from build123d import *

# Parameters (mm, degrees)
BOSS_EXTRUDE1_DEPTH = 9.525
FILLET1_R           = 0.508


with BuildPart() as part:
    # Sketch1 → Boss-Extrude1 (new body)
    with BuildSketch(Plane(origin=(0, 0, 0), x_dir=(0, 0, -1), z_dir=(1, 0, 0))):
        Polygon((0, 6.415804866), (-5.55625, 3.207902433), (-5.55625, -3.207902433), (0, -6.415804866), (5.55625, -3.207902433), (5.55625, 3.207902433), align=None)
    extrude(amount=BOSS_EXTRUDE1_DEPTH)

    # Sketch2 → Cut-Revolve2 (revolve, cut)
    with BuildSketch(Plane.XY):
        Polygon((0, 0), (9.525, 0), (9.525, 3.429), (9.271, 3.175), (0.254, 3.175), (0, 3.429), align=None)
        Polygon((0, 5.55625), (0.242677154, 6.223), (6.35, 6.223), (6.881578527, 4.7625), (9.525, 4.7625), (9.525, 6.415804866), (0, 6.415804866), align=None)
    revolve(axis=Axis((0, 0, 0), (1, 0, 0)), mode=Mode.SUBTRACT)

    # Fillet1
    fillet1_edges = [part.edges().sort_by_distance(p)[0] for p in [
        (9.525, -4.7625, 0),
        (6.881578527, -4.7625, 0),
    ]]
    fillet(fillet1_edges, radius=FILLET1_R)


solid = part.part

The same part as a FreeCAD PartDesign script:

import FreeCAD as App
import Part
import Sketcher
from FreeCAD import Vector
Q = App.Units.Quantity


def edges_at(feature, points):
    """Names of the edges that pass closest to the given points."""
    edges = feature.Shape.Edges
    near = lambda p: min(range(len(edges)), key=lambda i: edges[i].distToShape(Part.Vertex(*p))[0])
    return sorted({f"Edge{near(p) + 1}" for p in points})

doc = App.newDocument("Part")
body = doc.addObject("PartDesign::Body", "Body")

# Sketch on YZ plane
sketch1 = doc.addObject("Sketcher::SketchObject", "Sketch")
body.addObject(sketch1)
sketch1.AttachmentSupport = (doc.YZ_Plane, [""])
sketch1.MapMode = "FlatFace"
sketch1.addGeometry([
    Part.LineSegment(Vector(6.415805, 0, 0), Vector(3.207902, 5.55625, 0)),  # 0
    Part.LineSegment(Vector(3.207902, 5.55625, 0), Vector(-3.207902, 5.55625, 0)),  # 1
    Part.LineSegment(Vector(-3.207902, 5.55625, 0), Vector(-6.415805, 0, 0)),  # 2
    Part.LineSegment(Vector(-6.415805, 0, 0), Vector(-3.207902, -5.55625, 0)),  # 3
    Part.LineSegment(Vector(-3.207902, -5.55625, 0), Vector(3.207902, -5.55625, 0)),  # 4
    Part.LineSegment(Vector(3.207902, -5.55625, 0), Vector(6.415805, 0, 0)),  # 5
], False)
sketch1.addConstraint([
    Sketcher.Constraint("Coincident", 0, 2, 1, 1),
    Sketcher.Constraint("Coincident", 1, 2, 2, 1),
    Sketcher.Constraint("Coincident", 2, 2, 3, 1),
    Sketcher.Constraint("Coincident", 3, 2, 4, 1),
    Sketcher.Constraint("Coincident", 4, 2, 5, 1),
    Sketcher.Constraint("Coincident", 5, 2, 0, 1),
    Sketcher.Constraint("Horizontal", 1),
    Sketcher.Constraint("Horizontal", 4),
    Sketcher.Constraint("Symmetric", 0, 2, 3, 2, -1, 1),
    Sketcher.Constraint("Symmetric", 2, 2, 5, 2, -1, 1),
    Sketcher.Constraint("PointOnObject", 2, 2, -1),
    Sketcher.Constraint("Parallel", 2, 5),
    Sketcher.Constraint("Vertical", 1, 2, 3, 2),
    Sketcher.Constraint("Angle", 0, Q("120 deg")),
    Sketcher.Constraint("DistanceY", -1, 1, 0, 2, Q("0.21875 in")),
    Sketcher.Constraint("DistanceX", 1, 2, 1, 1, Q("6.415805 mm")),
])
pad1 = doc.addObject("PartDesign::Pad", "Pad")
body.addObject(pad1)
pad1.Profile = sketch1
pad1.Length = Q("0.375 in")

# Sketch on XY plane
sketch2 = doc.addObject("Sketcher::SketchObject", "Sketch001")
body.addObject(sketch2)
sketch2.AttachmentSupport = (doc.XY_Plane, [""])
sketch2.MapMode = "FlatFace"
sketch2.addGeometry([
    Part.LineSegment(Vector(0, 0, 0), Vector(9.525, 0, 0)),  # 0
    Part.LineSegment(Vector(9.525, 0, 0), Vector(9.525, 3.429, 0)),  # 1
    Part.LineSegment(Vector(9.525, 3.429, 0), Vector(9.271, 3.175, 0)),  # 2
    Part.LineSegment(Vector(9.271, 3.175, 0), Vector(0.254, 3.175, 0)),  # 3
    Part.LineSegment(Vector(0.254, 3.175, 0), Vector(0, 3.429, 0)),  # 4
    Part.LineSegment(Vector(0, 3.429, 0), Vector(0, 0, 0)),  # 5
    Part.LineSegment(Vector(0, 5.55625, 0), Vector(0.242677, 6.223, 0)),  # 6
    Part.LineSegment(Vector(0.242677, 6.223, 0), Vector(6.35, 6.223, 0)),  # 7
    Part.LineSegment(Vector(6.35, 6.223, 0), Vector(6.881579, 4.7625, 0)),  # 8
    Part.LineSegment(Vector(6.881579, 4.7625, 0), Vector(9.525, 4.7625, 0)),  # 9
    Part.LineSegment(Vector(9.525, 4.7625, 0), Vector(9.525, 6.415805, 0)),  # 10
    Part.LineSegment(Vector(9.525, 6.415805, 0), Vector(0, 6.415805, 0)),  # 11
    Part.LineSegment(Vector(0, 6.415805, 0), Vector(0, 5.55625, 0)),  # 12
], False)
sketch2.addConstraint([
    Sketcher.Constraint("Coincident", 0, 2, 1, 1),
    Sketcher.Constraint("Coincident", 1, 2, 2, 1),
    Sketcher.Constraint("Coincident", 2, 2, 3, 1),
    Sketcher.Constraint("Coincident", 3, 2, 4, 1),
    Sketcher.Constraint("Coincident", 4, 2, 5, 1),
    Sketcher.Constraint("Coincident", 5, 2, 0, 1),
    Sketcher.Constraint("Coincident", 6, 2, 7, 1),
    Sketcher.Constraint("Coincident", 7, 2, 8, 1),
    Sketcher.Constraint("Coincident", 8, 2, 9, 1),
    Sketcher.Constraint("Coincident", 9, 2, 10, 1),
    Sketcher.Constraint("Coincident", 10, 2, 11, 1),
    Sketcher.Constraint("Coincident", 11, 2, 12, 1),
    Sketcher.Constraint("Coincident", 12, 2, 6, 1),
    Sketcher.Constraint("Horizontal", 0),
    Sketcher.Constraint("Vertical", 1),
    Sketcher.Constraint("Horizontal", 3),
    Sketcher.Constraint("Vertical", 5),
    Sketcher.Constraint("Horizontal", 7),
    Sketcher.Constraint("Horizontal", 9),
    Sketcher.Constraint("Vertical", 10),
    Sketcher.Constraint("Horizontal", 11),
    Sketcher.Constraint("Vertical", 12),
    Sketcher.Constraint("Coincident", 5, 2, -1, 1),
    Sketcher.Constraint("PointOnObject", 11, 2, -2),
    Sketcher.Constraint("Perpendicular", 2, 4),
    Sketcher.Constraint("Horizontal", 1, 2, 4, 2),
    Sketcher.Constraint("Vertical", 1, 2, 9, 2),
    Sketcher.Constraint("Equal", 2, 4),
    Sketcher.Constraint("Angle", 6, Q("70 deg")),
    Sketcher.Constraint("Angle", 8, Q("-70 deg")),
    Sketcher.Constraint("DistanceX", 0, 1, 0, 2, Q("0.375 in")),
    Sketcher.Constraint("DistanceX", 3, 2, 3, 1, Q("0.355 in")),
    Sketcher.Constraint("DistanceY", 1, 1, 1, 2, Q("0.135 in")),
    Sketcher.Constraint("DistanceX", -1, 1, 7, 2, Q("0.25 in")),
    Sketcher.Constraint("DistanceY", 4, 2, 6, 2, Q("0.11 in")),
    Sketcher.Constraint("DistanceY", -1, 1, 8, 2, Q("0.1875 in")),
    Sketcher.Constraint("DistanceY", -1, 1, 12, 2, Q("0.21875 in")),
    Sketcher.Constraint("DistanceY", 10, 1, 10, 2, Q("1.653305 mm")),
])
groove = doc.addObject("PartDesign::Groove", "Groove")
body.addObject(groove)
groove.Profile = sketch2
groove.ReferenceAxis = (sketch2, ["H_Axis"])
groove.Angle = 360
doc.recompute()

fillet = doc.addObject("PartDesign::Fillet", "Fillet")
body.addObject(fillet)
fillet.Base = (groove, edges_at(groove, [(9.525, -4.763, 0), (6.882, -4.763, 0)]))
fillet.Radius = Q("0.02 in")

doc.recompute()
